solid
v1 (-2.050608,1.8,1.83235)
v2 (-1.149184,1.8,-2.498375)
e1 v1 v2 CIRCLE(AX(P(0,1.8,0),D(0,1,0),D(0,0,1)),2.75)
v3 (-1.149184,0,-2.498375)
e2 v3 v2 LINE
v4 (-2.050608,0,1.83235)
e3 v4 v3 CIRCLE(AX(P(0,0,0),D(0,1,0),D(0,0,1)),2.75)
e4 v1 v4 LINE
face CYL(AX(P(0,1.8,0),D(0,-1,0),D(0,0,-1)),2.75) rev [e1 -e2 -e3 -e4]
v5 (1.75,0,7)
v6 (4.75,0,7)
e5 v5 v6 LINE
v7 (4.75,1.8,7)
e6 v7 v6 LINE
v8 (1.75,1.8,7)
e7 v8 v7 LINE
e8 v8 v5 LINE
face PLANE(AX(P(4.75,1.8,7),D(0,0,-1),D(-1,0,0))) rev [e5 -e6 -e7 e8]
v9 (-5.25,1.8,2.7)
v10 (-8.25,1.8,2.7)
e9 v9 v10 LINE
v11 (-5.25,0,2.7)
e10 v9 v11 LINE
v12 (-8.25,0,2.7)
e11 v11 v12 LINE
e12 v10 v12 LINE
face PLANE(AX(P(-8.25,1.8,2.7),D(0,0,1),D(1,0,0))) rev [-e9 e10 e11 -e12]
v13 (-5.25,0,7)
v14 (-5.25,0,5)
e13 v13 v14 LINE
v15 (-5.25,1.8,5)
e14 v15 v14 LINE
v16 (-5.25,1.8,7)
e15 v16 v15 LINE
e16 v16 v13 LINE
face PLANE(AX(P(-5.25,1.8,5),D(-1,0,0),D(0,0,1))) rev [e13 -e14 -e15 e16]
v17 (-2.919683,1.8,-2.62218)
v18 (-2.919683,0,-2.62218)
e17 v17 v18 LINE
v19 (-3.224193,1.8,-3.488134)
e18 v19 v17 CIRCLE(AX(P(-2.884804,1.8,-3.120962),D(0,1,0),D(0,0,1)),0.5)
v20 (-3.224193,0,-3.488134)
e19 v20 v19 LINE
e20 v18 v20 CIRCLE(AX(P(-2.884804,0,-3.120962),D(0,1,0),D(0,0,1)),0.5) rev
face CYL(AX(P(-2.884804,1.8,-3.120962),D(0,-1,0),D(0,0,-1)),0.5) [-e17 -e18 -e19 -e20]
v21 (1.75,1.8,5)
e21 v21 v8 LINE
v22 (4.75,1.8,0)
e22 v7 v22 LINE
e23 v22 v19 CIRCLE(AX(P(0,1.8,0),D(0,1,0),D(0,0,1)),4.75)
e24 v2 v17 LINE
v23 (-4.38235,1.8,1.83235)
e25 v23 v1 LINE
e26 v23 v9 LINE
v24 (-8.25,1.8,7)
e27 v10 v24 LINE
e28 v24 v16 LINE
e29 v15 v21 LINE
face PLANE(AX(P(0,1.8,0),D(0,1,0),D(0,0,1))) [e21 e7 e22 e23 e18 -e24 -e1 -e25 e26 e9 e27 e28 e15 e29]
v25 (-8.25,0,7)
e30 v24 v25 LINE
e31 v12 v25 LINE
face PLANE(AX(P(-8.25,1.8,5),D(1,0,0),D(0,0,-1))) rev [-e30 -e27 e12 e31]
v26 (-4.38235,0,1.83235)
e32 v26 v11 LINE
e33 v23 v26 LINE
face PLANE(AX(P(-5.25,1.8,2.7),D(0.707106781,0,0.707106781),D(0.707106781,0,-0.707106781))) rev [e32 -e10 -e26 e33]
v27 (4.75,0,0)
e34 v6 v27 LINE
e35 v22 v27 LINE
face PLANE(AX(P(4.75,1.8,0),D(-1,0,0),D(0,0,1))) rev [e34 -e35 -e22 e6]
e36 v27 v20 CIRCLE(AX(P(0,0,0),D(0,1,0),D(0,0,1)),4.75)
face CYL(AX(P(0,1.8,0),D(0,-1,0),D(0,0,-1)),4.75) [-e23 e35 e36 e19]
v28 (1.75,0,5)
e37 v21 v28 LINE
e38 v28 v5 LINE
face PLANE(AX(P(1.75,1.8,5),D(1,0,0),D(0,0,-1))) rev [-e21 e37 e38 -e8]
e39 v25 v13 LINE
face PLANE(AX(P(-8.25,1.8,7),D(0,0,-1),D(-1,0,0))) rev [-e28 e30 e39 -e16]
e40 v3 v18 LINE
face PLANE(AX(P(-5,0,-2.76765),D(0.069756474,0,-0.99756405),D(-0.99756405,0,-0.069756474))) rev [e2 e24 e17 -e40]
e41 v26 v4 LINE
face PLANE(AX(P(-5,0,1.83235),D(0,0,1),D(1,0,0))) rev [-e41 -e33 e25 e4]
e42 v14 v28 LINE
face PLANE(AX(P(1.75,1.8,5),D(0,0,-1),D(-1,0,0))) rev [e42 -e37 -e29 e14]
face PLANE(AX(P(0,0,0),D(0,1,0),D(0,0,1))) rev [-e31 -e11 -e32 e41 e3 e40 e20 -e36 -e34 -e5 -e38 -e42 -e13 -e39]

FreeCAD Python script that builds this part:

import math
import FreeCAD as App
import Part
import Sketcher
Q = App.Units.Quantity


def edges_at(feature, points):
    """Names of the edges that pass closest to the given points."""
    edges = feature.Shape.Edges
    near = lambda p: min(range(len(edges)), key=lambda i: edges[i].distToShape(Part.Vertex(*p))[0])
    return sorted({f"Edge{near(p) + 1}" for p in points})


def add_polygon(sketch, points):
    """Adds a closed chain of lines whose ends are joined by coincident constraints."""
    first, n = sketch.GeometryCount, len(points)
    for a, b in zip(points, points[1:] + points[:1]):
        sketch.addGeometry(Part.LineSegment(App.Vector(*a, 0), App.Vector(*b, 0)), False)
    for i in range(n):
        sketch.addConstraint(Sketcher.Constraint("Coincident", first + i, 2, first + (i + 1) % n, 1))

doc = App.newDocument("Part")
body = doc.addObject("PartDesign::Body", "Body")

# Sketch on XZ plane
sketch1 = body.newObject("Sketcher::SketchObject", "Sketch")
sketch1.AttachmentSupport = (doc.getObject("XZ_Plane"), [""])
sketch1.MapMode = "FlatFace"
sketch1.addGeometry([
    Part.LineSegment(App.Vector(4.8, 7, 0), App.Vector(4.8, 0, 0)),  # 0
    Part.ArcOfCircle(Part.Circle(App.Vector(0, 0, 0), App.Vector(0, 0, 1), 4.8), math.radians(157), math.radians(360)),  # 1
    Part.LineSegment(App.Vector(-4.4, 1.8, 0), App.Vector(-5.2, 2.7, 0)),  # 2
    Part.LineSegment(App.Vector(-5.2, 2.7, 0), App.Vector(-8.2, 2.7, 0)),  # 3
    Part.LineSegment(App.Vector(-8.2, 2.7, 0), App.Vector(-8.2, 7, 0)),  # 4
    Part.LineSegment(App.Vector(-8.2, 7, 0), App.Vector(-5.2, 7, 0)),  # 5
    Part.LineSegment(App.Vector(-5.2, 7, 0), App.Vector(-5.2, 5, 0)),  # 6
    Part.LineSegment(App.Vector(-5.2, 5, 0), App.Vector(1.8, 5, 0)),  # 7
    Part.LineSegment(App.Vector(1.8, 5, 0), App.Vector(1.8, 7, 0)),  # 8
    Part.LineSegment(App.Vector(1.8, 7, 0), App.Vector(4.8, 7, 0)),  # 9
    Part.Circle(App.Vector(0, 0, 0), App.Vector(0, 0, 1), 2.8),  # 10
], False)
sketch1.addConstraint([
    Sketcher.Constraint("Tangent", 0, 2, 1, 2),
    Sketcher.Constraint("Coincident", 1, 1, 2, 1),
    Sketcher.Constraint("Coincident", 2, 2, 3, 1),
    Sketcher.Constraint("Coincident", 3, 2, 4, 1),
    Sketcher.Constraint("Coincident", 4, 2, 5, 1),
    Sketcher.Constraint("Coincident", 5, 2, 6, 1),
    Sketcher.Constraint("Coincident", 6, 2, 7, 1),
    Sketcher.Constraint("Coincident", 7, 2, 8, 1),
    Sketcher.Constraint("Coincident", 8, 2, 9, 1),
    Sketcher.Constraint("Coincident", 9, 2, 0, 1),
    Sketcher.Constraint("Vertical", 0),
    Sketcher.Constraint("Horizontal", 3),
    Sketcher.Constraint("Vertical", 4),
    Sketcher.Constraint("Horizontal", 5),
    Sketcher.Constraint("Vertical", 6),
    Sketcher.Constraint("Horizontal", 7),
    Sketcher.Constraint("Vertical", 8),
    Sketcher.Constraint("Horizontal", 9),
    Sketcher.Constraint("Coincident", 1, 3, -1, 1),
    Sketcher.Constraint("Coincident", 10, 3, -1, 1),
    Sketcher.Constraint("Horizontal", 5, 2, 8, 2),
    Sketcher.Constraint("Vertical", 2, 2, 5, 2),
    Sketcher.Constraint("Equal", 5, 9),
    Sketcher.Constraint("Equal", 7, 0),
    Sketcher.Constraint("Diameter", 10, 5.5),
    Sketcher.Constraint("DistanceX", 3, 2, 3, 1, 3.0),
    Sketcher.Constraint("DistanceX", 7, 1, 7, 2, 7.0),
    Sketcher.Constraint("DistanceY", 6, 2, 6, 1, 2.0),
    Sketcher.Constraint("Angle", 2, Q("135 deg")),
    Sketcher.Constraint("Radius", 1, 4.75),
    Sketcher.Constraint("DistanceY", 4, 1, 4, 2, 4.3),
])
pad1 = body.newObject("PartDesign::Pad", "Pad")
pad1.Profile = sketch1
pad1.Length = 1.8
pad1.Reversed = True

# Sketch on XZ plane
sketch2 = body.newObject("Sketcher::SketchObject", "Sketch001")
sketch2.AttachmentSupport = (doc.getObject("XZ_Plane"), [""])
sketch2.MapMode = "FlatFace"
sketch2.AttachmentOffset = App.Placement(App.Vector(0, 0, -1.8), App.Rotation())
add_polygon(sketch2, [(0, -2.4), (-5, -2.8), (-5, 1.8), (0, 1.8)])  # lines 0-3
sketch2.addConstraint([
    Sketcher.Constraint("Vertical", 1),
    Sketcher.Constraint("Horizontal", 2),
    Sketcher.Constraint("Vertical", 3),
    Sketcher.Constraint("PointOnObject", 2, 2, -2),
    Sketcher.Constraint("DistanceX", 2, 1, 2, 2, 5.0),
    Sketcher.Constraint("Angle", 0, Q("-176 deg")),
    Sketcher.Constraint("DistanceY", 1, 1, 1, 2, 4.6),
    Sketcher.Constraint("DistanceY", 0, 2, -1, 1, 2.76765),
])
pocket1 = body.newObject("PartDesign::Pocket", "Pocket")
pocket1.Profile = sketch2
pocket1.Length = 1.8
pocket1.Reversed = True
doc.recompute()

fillet = body.newObject("PartDesign::Fillet", "Fillet")
fillet.Base = (pocket1, edges_at(pocket1, [(-3.914, 0.9, -2.692)]))
fillet.Radius = 0.5

doc.recompute()
